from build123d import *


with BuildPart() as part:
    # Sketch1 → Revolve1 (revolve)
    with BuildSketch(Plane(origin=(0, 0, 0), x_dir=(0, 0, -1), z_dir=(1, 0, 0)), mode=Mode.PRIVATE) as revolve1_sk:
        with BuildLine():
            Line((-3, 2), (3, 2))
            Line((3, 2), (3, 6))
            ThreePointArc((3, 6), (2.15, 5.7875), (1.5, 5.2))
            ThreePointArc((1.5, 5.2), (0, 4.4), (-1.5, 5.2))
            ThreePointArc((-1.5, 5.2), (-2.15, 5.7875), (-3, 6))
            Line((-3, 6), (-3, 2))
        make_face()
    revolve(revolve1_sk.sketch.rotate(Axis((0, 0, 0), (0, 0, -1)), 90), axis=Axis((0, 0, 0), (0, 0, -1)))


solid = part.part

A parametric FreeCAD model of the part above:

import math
import FreeCAD as App
import Part
import Sketcher
from FreeCAD import Vector
Q = App.Units.Quantity

doc = App.newDocument("Part")
body = doc.addObject("PartDesign::Body", "Body")

# Sketch on YZ plane
sketch1 = body.newObject("Sketcher::SketchObject", "Sketch")
sketch1.AttachmentSupport = (doc.getObject("YZ_Plane"), [""])
sketch1.MapMode = "FlatFace"
sketch1.addGeometry([
    Part.LineSegment(Vector(2, 3, 0), Vector(2, -3, 0)),  # 0
    Part.LineSegment(Vector(2, -3, 0), Vector(6, -3, 0)),  # 1
    Part.ArcOfCircle(Part.Circle(Vector(4.2, -3, 0), Vector(0, 0, 1), 1.8), math.radians(0), math.radians(56)),  # 2
    Part.ArcOfCircle(Part.Circle(Vector(6.2, 0, 0), Vector(0, 0, 1), 1.8), math.radians(124), math.radians(236)),  # 3
    Part.ArcOfCircle(Part.Circle(Vector(4.2, 3, 0), Vector(0, 0, 1), 1.8), math.radians(-56), math.radians(0)),  # 4
    Part.LineSegment(Vector(6, 3, 0), Vector(2, 3, 0)),  # 5
], False)
sketch1.addConstraint([
    Sketcher.Constraint("Coincident", 0, 2, 1, 1),
    Sketcher.Constraint("Coincident", 1, 2, 2, 1),
    Sketcher.Constraint("Tangent", 2, 2, 3, 2),
    Sketcher.Constraint("Tangent", 3, 1, 4, 1),
    Sketcher.Constraint("Coincident", 4, 2, 5, 1),
    Sketcher.Constraint("Coincident", 5, 2, 0, 1),
    Sketcher.Constraint("Vertical", 0),
    Sketcher.Constraint("Horizontal", 1),
    Sketcher.Constraint("Horizontal", 5),
    Sketcher.Constraint("Equal", 2, 3),
    Sketcher.Constraint("Equal", 3, 4),
    Sketcher.Constraint("Symmetric", 2, 3, 4, 3, -1),
    Sketcher.Constraint("Horizontal", 2, 3, 0, 2),
    Sketcher.Constraint("DistanceX", 1, 1, 1, 2, Q("4 mm")),
    Sketcher.Constraint("DistanceY", 0, 2, 0, 1, Q("6 mm")),
    Sketcher.Constraint("DistanceY", 2, 3, -1, 1, Q("3 mm")),
    Sketcher.Constraint("DistanceX", -1, 1, 0, 2, Q("2 mm")),
    Sketcher.Constraint("DistanceX", -1, 1, 2, 2, Q("5.2 mm")),
])
revolution = body.newObject("PartDesign::Revolution", "Revolution")
revolution.Profile = sketch1
revolution.ReferenceAxis = (sketch1, ["V_Axis"])
revolution.Angle = 360

doc.recompute()
